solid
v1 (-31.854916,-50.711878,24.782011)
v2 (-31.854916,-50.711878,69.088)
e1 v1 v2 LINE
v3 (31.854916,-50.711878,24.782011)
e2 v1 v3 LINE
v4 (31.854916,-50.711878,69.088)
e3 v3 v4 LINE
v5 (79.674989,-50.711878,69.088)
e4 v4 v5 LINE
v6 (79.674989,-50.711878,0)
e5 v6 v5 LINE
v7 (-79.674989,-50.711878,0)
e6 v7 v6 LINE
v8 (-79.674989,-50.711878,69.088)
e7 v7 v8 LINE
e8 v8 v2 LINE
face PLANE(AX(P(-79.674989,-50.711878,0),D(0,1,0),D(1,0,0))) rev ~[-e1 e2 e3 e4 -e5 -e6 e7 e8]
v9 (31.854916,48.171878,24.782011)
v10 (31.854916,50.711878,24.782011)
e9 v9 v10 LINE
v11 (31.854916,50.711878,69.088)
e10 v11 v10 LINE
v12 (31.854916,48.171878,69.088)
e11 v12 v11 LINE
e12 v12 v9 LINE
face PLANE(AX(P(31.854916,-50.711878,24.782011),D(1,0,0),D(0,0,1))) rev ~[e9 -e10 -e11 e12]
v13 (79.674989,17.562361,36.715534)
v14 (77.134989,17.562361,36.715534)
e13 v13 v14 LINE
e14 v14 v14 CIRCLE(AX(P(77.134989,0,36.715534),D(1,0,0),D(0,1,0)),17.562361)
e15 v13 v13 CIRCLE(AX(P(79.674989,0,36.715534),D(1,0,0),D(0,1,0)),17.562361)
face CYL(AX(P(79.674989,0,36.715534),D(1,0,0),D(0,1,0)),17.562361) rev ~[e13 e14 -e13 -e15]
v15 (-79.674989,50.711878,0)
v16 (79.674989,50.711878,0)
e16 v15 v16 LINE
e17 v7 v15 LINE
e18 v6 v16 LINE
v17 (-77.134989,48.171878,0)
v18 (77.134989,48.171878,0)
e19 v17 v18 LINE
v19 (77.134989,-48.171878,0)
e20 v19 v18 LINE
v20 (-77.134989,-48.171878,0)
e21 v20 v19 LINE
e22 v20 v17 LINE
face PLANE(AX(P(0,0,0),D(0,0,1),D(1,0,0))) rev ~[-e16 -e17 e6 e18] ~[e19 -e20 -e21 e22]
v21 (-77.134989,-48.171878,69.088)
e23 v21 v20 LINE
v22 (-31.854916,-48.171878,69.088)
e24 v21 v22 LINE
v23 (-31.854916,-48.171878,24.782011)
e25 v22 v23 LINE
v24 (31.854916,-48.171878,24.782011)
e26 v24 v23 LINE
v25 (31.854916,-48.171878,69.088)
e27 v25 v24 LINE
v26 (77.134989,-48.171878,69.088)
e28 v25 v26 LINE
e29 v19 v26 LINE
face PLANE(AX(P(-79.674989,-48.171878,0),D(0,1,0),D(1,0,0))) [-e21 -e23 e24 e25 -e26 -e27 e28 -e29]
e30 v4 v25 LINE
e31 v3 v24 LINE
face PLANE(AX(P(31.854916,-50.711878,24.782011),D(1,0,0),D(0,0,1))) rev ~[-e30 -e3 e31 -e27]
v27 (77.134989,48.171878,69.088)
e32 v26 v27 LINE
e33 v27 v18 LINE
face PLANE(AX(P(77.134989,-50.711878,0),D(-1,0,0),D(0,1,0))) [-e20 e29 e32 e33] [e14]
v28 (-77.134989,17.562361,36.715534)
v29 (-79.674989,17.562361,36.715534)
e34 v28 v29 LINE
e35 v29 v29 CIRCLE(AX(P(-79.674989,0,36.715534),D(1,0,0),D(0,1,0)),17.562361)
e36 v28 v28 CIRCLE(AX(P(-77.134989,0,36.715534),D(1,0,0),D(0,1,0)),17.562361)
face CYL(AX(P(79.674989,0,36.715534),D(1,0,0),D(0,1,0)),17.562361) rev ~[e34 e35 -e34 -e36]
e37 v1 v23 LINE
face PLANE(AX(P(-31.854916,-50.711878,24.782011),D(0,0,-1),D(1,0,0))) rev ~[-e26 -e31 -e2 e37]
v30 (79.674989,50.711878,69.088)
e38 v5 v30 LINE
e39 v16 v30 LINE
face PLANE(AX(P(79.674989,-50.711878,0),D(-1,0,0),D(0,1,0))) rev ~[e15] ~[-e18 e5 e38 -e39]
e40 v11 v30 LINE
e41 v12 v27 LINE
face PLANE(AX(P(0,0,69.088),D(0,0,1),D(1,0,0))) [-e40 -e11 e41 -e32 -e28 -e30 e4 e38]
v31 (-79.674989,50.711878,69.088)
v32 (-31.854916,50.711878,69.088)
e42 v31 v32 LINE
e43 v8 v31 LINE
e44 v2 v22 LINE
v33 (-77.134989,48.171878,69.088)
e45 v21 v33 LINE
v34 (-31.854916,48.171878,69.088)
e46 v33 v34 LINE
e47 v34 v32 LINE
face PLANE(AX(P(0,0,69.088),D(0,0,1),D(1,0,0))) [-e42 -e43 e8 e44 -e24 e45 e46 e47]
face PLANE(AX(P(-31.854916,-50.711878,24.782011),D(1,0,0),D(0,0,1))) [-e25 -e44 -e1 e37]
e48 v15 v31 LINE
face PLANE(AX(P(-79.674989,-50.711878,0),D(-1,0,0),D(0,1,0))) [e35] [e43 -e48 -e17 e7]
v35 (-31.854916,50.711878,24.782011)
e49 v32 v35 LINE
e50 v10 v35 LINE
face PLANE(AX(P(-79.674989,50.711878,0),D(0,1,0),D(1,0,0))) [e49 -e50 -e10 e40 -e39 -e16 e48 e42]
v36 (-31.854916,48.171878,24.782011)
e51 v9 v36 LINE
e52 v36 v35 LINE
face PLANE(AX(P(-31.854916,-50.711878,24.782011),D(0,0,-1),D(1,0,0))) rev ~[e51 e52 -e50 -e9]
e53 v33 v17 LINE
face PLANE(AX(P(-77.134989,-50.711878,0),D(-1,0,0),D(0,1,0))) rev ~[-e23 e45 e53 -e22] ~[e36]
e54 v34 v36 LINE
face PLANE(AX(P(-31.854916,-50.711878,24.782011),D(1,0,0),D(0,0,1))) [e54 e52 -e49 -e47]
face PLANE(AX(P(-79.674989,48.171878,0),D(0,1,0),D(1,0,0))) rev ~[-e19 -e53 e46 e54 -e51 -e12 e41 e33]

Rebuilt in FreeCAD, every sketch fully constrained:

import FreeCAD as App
import Part
import Sketcher
Q = App.Units.Quantity


def faces_at(feature, points):
    """Names of the faces that lie closest to the given points."""
    faces = feature.Shape.Faces
    near = lambda p: min(range(len(faces)), key=lambda i: faces[i].distToShape(Part.Vertex(*p))[0])
    return sorted({f"Face{near(p) + 1}" for p in points})

doc = App.newDocument("Part")
params = doc.addObject("Spreadsheet::Sheet", "Params")
for row, (alias, value) in enumerate([
    ("pad1_length", "2.72 in"),
    ("thickness_wall", "0.1 in"),
], start=1):
    params.set(f"A{row}", alias)
    params.set(f"B{row}", "=" + value)
    params.setAlias(f"B{row}", alias)

body = doc.addObject("PartDesign::Body", "Body")

# Sketch on XY plane
sketch1 = body.newObject("Sketcher::SketchObject", "Sketch")
sketch1.AttachmentSupport = (doc.getObject("XY_Plane"), [""])
sketch1.MapMode = "FlatFace"
sketch1.addGeometry([
    Part.LineSegment(App.Vector(-80, 51, 0), App.Vector(-80, -51, 0)),
    Part.LineSegment(App.Vector(-80, -51, 0), App.Vector(80, -51, 0)),
    Part.LineSegment(App.Vector(80, -51, 0), App.Vector(80, 51, 0)),
    Part.LineSegment(App.Vector(80, 51, 0), App.Vector(-80, 51, 0)),
], False)
sketch1.addConstraint([
    Sketcher.Constraint("Coincident", 0, 2, 1, 1),
    Sketcher.Constraint("Coincident", 1, 2, 2, 1),
    Sketcher.Constraint("Coincident", 2, 2, 3, 1),
    Sketcher.Constraint("Coincident", 3, 2, 0, 1),
    Sketcher.Constraint("Vertical", 0),
    Sketcher.Constraint("Horizontal", 1),
    Sketcher.Constraint("Vertical", 2),
    Sketcher.Constraint("Horizontal", 3),
    Sketcher.Constraint("Symmetric", 0, 2, 2, 2, -1, 1),
    Sketcher.Constraint("DistanceX", 1, 1, 1, 2, Q("159.349978 mm")),
    Sketcher.Constraint("DistanceY", 0, 2, 0, 1, Q("101.423756 mm")),
])
pad1 = body.newObject("PartDesign::Pad", "Pad")
pad1.Profile = sketch1
pad1.setExpression("Length", "Params.pad1_length")
doc.recompute()

thickness = body.newObject("PartDesign::Thickness", "Thickness")
thickness.Base = (pad1, faces_at(pad1, [(0, 0, 69.088), (0, 0, 0)]))
thickness.setExpression("Value", "Params.thickness_wall")
thickness.Reversed = True
thickness.Join = "Arc"

# Sketch on XZ plane
sketch2 = body.newObject("Sketcher::SketchObject", "Sketch001")
sketch2.AttachmentSupport = (doc.getObject("XZ_Plane"), [""])
sketch2.MapMode = "FlatFace"
sketch2.AttachmentOffset = App.Placement(App.Vector(0, 0, 50.711878), App.Rotation())
sketch2.addGeometry([
    Part.LineSegment(App.Vector(-32, 113, 0), App.Vector(-32, 25, 0)),
    Part.LineSegment(App.Vector(-32, 25, 0), App.Vector(32, 25, 0)),
    Part.LineSegment(App.Vector(32, 25, 0), App.Vector(32, 113, 0)),
    Part.LineSegment(App.Vector(32, 113, 0), App.Vector(-32, 113, 0)),
], False)
sketch2.addConstraint([
    Sketcher.Constraint("Coincident", 0, 2, 1, 1),
    Sketcher.Constraint("Coincident", 1, 2, 2, 1),
    Sketcher.Constraint("Coincident", 2, 2, 3, 1),
    Sketcher.Constraint("Coincident", 3, 2, 0, 1),
    Sketcher.Constraint("Vertical", 0),
    Sketcher.Constraint("Horizontal", 1),
    Sketcher.Constraint("Vertical", 2),
    Sketcher.Constraint("Horizontal", 3),
    Sketcher.Constraint("DistanceY", 0, 2, 0, 1, Q("88.611978 mm")),
    Sketcher.Constraint("DistanceX", 1, 1, 1, 2, Q("63.709832 mm")),
    Sketcher.Constraint("DistanceY", -1, 1, 0, 2, Q("24.782011 mm")),
    Sketcher.Constraint("DistanceX", 0, 2, -1, 1, Q("31.854916 mm")),
])
pocket1 = body.newObject("PartDesign::Pocket", "Pocket")
pocket1.Profile = sketch2
pocket1.Type = "ThroughAll"

# Sketch on YZ plane
sketch3 = body.newObject("Sketcher::SketchObject", "Sketch002")
sketch3.AttachmentSupport = (doc.getObject("YZ_Plane"), [""])
sketch3.MapMode = "FlatFace"
sketch3.AttachmentOffset = App.Placement(App.Vector(0, 0, 79.674989), App.Rotation())
sketch3.addGeometry(Part.Circle(App.Vector(0, 37, 0), App.Vector(0, 0, 1), 18), False)
sketch3.addConstraint([
    Sketcher.Constraint("PointOnObject", 0, 3, -2),
    Sketcher.Constraint("Diameter", 0, Q("35.124722 mm")),
    Sketcher.Constraint("DistanceY", -1, 1, 0, 3, Q("36.715534 mm")),
])
pocket2 = body.newObject("PartDesign::Pocket", "Pocket001")
pocket2.Profile = sketch3
pocket2.Type = "ThroughAll"

doc.recompute()
